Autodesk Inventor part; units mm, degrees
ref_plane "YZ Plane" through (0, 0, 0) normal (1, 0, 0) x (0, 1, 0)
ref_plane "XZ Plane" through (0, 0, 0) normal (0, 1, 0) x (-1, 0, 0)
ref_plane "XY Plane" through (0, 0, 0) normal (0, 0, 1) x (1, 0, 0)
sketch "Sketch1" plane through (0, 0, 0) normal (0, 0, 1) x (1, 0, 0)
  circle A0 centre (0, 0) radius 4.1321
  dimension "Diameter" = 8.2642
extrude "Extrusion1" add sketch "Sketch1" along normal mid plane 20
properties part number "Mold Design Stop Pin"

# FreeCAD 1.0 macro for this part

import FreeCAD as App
import Part
import Sketcher

V = App.Vector

doc = App.newDocument("Part")
body = doc.addObject("PartDesign::Body", "Body")

# Sketch on XY plane
sketch1 = body.newObject("Sketcher::SketchObject", "Sketch")
sketch1.AttachmentSupport = (doc.getObject("XY_Plane"), [""])
sketch1.MapMode = "FlatFace"
sketch1.addGeometry(Part.Circle(V(0, 0, 0), V(0, 0, 1), 4.1321), False)
sketch1.addConstraint(Sketcher.Constraint("Coincident", 0, 3, -1, 1))
sketch1.addConstraint(Sketcher.Constraint("Diameter", 0, 8.2642))
pad1 = body.newObject("PartDesign::Pad", "Pad")
pad1.Profile = sketch1
pad1.Length = 20
pad1.Midplane = True

doc.recompute()
